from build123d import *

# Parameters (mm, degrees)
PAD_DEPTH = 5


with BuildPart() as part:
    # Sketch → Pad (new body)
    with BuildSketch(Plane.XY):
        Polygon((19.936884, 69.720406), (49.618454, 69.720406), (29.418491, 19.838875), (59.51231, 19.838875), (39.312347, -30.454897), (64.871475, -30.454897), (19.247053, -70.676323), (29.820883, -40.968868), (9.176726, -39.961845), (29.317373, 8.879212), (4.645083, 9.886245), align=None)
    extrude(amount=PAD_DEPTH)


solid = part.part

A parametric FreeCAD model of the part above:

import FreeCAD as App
import Part
import Sketcher
Q = App.Units.Quantity


def add_polygon(sketch, points):
    """Adds a closed chain of lines whose ends are joined by coincident constraints."""
    first, n = sketch.GeometryCount, len(points)
    for a, b in zip(points, points[1:] + points[:1]):
        sketch.addGeometry(Part.LineSegment(App.Vector(*a, 0), App.Vector(*b, 0)), False)
    for i in range(n):
        sketch.addConstraint(Sketcher.Constraint("Coincident", first + i, 2, first + (i + 1) % n, 1))

doc = App.newDocument("Part")
body = doc.addObject("PartDesign::Body", "Body")

# Sketch on XY plane
sketch1 = doc.addObject("Sketcher::SketchObject", "Sketch")
body.addObject(sketch1)
sketch1.AttachmentSupport = (doc.XY_Plane, [""])
sketch1.MapMode = "FlatFace"
add_polygon(sketch1, [(49.618454, 69.720406), (19.936884, 69.720406), (4.645083, 9.886245), (29.317373, 8.879212), (9.176726, -39.961845), (29.820883, -40.968868), (19.247053, -70.676323), (64.871475, -30.454897), (39.312347, -30.454897), (59.51231, 19.838875), (29.418491, 19.838875)])  # lines 0-10
sketch1.addConstraint([
    Sketcher.Constraint("Horizontal", 0),
    Sketcher.Constraint("Horizontal", 7),
    Sketcher.Constraint("Horizontal", 9),
    Sketcher.Constraint("DistanceX", 0, 2, 4, 2, Q("9.883999 mm")),
    Sketcher.Constraint("DistanceX", 0, 2, 0, 1, Q("29.68157 mm")),
    Sketcher.Constraint("DistanceX", 7, 2, 7, 1, Q("25.559128 mm")),
    Sketcher.Constraint("DistanceX", 9, 2, 9, 1, Q("30.093819 mm")),
    Sketcher.Constraint("DistanceX", 1, 2, 0, 2, Q("15.291801 mm")),
    Sketcher.Constraint("Distance", 3, Q("52.83081 mm")),
    Sketcher.Constraint("Distance", 6, Q("60.82229 mm")),
    Sketcher.Constraint("DistanceX", -1, 1, 8, 2, Q("59.51231 mm")),
    Sketcher.Constraint("DistanceY", 1, 2, 0, 2, Q("59.834161 mm")),
    Sketcher.Constraint("DistanceX", 1, 2, 2, 2, Q("24.67229 mm")),
    Sketcher.Constraint("DistanceY", 3, 2, 1, 2, Q("49.84809 mm")),
    Sketcher.Constraint("DistanceY", 4, 2, 2, 2, Q("49.84808 mm")),
    Sketcher.Constraint("DistanceX", 5, 2, 4, 2, Q("10.57383 mm")),
    Sketcher.Constraint("DistanceY", 5, 2, 3, 2, Q("30.714478 mm")),
    Sketcher.Constraint("DistanceY", 4, 2, 6, 2, Q("10.513971 mm")),
    Sketcher.Constraint("DistanceX", 3, 2, 6, 2, Q("55.694749 mm")),
    Sketcher.Constraint("DistanceY", 1, 2, 8, 2, Q("9.95263 mm")),
    Sketcher.Constraint("DistanceX", 1, 2, 9, 2, Q("24.773408 mm")),
    Sketcher.Constraint("DistanceY", -1, 1, 0, 2, Q("69.720406 mm")),
])
pad1 = doc.addObject("PartDesign::Pad", "Pad")
body.addObject(pad1)
pad1.Profile = sketch1
pad1.Length = 5

doc.recompute()
